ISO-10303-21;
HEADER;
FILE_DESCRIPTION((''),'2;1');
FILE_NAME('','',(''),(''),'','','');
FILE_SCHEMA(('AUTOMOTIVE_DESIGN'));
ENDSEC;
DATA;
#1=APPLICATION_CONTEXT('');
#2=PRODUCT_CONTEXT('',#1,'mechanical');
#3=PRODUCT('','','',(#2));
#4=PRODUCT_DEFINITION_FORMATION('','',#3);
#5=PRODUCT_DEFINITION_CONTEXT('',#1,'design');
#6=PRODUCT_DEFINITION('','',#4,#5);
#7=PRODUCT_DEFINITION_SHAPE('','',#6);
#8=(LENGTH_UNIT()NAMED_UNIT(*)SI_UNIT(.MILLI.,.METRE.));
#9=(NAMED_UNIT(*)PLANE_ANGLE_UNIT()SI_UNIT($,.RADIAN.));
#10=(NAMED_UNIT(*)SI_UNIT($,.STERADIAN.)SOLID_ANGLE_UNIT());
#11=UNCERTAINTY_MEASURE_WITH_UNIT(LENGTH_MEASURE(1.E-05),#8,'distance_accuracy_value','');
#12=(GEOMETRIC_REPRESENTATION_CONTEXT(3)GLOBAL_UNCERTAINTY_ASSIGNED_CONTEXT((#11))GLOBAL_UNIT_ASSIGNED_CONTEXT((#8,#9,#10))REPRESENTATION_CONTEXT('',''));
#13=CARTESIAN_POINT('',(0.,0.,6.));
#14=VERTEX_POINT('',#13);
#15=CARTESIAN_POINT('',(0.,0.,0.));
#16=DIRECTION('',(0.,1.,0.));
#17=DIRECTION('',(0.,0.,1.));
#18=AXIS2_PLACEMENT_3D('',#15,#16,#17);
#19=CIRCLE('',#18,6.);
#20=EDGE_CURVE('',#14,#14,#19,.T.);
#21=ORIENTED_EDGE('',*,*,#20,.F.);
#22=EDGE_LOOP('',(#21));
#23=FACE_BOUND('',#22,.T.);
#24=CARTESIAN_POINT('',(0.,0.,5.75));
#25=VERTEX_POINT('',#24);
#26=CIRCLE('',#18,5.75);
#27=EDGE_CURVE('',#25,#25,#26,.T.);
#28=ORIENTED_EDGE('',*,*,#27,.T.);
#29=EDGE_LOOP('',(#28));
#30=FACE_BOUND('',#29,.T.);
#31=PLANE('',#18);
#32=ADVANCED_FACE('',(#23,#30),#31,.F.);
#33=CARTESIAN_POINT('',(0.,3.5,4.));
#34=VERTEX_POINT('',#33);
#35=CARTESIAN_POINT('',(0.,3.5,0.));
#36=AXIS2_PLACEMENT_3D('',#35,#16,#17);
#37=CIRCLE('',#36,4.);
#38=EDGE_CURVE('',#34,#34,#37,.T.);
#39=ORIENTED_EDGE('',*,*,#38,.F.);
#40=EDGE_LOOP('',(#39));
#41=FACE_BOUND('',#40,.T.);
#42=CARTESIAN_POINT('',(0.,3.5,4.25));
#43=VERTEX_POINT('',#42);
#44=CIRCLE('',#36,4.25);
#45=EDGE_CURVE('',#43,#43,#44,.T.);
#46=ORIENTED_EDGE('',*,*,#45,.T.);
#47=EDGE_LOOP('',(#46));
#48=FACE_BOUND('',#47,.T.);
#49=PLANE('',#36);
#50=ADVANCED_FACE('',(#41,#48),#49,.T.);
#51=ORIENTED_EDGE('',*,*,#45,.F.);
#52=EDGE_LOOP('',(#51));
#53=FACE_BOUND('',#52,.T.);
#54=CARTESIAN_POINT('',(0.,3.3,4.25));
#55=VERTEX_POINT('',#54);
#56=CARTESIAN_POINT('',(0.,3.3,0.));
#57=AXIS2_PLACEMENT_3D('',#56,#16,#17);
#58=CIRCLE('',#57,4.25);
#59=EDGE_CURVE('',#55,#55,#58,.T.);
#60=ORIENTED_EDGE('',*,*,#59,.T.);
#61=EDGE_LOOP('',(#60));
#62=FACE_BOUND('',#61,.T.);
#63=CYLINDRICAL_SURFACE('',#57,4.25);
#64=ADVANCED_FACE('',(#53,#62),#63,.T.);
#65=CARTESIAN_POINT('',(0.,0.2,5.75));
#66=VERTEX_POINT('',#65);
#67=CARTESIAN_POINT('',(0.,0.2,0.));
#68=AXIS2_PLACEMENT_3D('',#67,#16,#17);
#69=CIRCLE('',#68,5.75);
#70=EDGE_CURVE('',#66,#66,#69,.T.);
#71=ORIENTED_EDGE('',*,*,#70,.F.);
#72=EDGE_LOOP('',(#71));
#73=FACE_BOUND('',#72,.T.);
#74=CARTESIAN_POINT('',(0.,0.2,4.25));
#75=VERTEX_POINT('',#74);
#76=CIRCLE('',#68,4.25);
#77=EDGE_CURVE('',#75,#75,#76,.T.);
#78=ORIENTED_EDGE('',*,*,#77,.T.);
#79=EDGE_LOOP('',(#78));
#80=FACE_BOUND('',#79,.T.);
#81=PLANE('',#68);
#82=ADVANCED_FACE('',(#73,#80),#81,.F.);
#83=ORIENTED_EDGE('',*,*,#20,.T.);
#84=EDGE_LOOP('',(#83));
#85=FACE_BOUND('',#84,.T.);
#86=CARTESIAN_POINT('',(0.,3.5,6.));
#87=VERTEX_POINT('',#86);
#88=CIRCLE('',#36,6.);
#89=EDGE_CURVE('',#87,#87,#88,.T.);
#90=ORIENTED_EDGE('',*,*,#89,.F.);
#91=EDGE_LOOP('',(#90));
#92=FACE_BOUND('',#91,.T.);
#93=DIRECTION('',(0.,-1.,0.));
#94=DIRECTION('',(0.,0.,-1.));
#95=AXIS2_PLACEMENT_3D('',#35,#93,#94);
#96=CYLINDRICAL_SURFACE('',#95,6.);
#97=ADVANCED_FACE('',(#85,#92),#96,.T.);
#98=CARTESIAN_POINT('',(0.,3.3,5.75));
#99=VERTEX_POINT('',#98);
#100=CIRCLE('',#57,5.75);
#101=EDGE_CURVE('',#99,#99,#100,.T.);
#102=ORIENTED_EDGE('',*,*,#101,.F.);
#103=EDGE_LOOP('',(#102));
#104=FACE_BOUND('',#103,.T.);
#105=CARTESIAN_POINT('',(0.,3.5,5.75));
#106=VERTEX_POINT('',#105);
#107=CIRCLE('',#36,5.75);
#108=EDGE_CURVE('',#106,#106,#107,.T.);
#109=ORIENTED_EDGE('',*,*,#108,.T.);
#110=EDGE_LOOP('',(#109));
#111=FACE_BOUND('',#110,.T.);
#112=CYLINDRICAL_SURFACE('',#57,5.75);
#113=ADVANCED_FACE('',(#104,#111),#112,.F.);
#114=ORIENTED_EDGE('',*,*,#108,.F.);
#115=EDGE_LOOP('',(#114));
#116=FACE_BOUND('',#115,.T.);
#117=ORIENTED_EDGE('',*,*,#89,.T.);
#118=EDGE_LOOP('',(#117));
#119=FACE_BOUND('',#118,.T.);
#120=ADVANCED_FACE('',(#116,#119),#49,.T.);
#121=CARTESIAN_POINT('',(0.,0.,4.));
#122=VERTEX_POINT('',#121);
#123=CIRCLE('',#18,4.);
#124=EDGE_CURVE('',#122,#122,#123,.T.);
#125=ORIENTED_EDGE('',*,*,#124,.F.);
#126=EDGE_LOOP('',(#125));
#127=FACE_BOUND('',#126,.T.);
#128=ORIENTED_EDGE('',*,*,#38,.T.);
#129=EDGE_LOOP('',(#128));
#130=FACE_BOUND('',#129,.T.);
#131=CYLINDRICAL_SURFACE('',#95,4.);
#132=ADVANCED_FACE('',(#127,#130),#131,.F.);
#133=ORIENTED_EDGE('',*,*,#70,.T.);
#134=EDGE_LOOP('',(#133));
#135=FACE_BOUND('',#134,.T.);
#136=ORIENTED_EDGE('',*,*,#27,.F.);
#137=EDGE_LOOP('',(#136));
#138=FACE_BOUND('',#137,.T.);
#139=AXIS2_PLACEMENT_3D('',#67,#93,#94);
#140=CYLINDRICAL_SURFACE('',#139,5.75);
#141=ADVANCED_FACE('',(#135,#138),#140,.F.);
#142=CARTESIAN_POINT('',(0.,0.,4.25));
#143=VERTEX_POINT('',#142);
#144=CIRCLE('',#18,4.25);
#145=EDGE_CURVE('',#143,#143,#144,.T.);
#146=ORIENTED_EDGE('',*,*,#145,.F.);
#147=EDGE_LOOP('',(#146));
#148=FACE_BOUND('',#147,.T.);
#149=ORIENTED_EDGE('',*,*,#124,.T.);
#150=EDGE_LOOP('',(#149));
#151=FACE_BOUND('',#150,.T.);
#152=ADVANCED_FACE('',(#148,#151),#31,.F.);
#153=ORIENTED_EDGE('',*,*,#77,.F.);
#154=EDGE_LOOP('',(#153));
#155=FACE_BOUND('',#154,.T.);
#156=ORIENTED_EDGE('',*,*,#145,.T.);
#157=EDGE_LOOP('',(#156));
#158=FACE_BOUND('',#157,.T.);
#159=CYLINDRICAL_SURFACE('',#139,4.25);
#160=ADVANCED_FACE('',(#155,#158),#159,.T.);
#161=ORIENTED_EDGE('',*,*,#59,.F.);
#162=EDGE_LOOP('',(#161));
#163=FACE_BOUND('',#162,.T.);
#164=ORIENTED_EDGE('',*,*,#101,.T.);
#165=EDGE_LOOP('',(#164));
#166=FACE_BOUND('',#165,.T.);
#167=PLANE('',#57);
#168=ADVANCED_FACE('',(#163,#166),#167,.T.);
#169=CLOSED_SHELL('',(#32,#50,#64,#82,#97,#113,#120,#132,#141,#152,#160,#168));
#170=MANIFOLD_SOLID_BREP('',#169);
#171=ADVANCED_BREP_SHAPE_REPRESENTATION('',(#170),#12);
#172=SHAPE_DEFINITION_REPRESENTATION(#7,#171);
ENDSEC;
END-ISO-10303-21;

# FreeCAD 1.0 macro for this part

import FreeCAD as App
import Part
import Sketcher

doc = App.newDocument("Part")
body = doc.addObject("PartDesign::Body", "Body")

# Sketch on XZ plane
sketch1 = body.newObject("Sketcher::SketchObject", "Sketch")
sketch1.AttachmentSupport = (doc.getObject("XZ_Plane"), [""])
sketch1.MapMode = "FlatFace"
sketch1.addGeometry([
    Part.Circle(App.Vector(0, 0, 0), App.Vector(0, 0, 1), 6),
    Part.Circle(App.Vector(0, 0, 0), App.Vector(0, 0, 1), 4),
], False)
sketch1.addConstraint([
    Sketcher.Constraint("Coincident", 0, 3, -1, 1),
    Sketcher.Constraint("Coincident", 1, 3, -1, 1),
    Sketcher.Constraint("Diameter", 0, 12.0),
    Sketcher.Constraint("Diameter", 1, 8.0),
])
pad1 = body.newObject("PartDesign::Pad", "Pad")
pad1.Profile = sketch1
pad1.Length = 3.5
pad1.Reversed = True

# Sketch on XZ plane
sketch2 = body.newObject("Sketcher::SketchObject", "Sketch001")
sketch2.AttachmentSupport = (doc.getObject("XZ_Plane"), [""])
sketch2.MapMode = "FlatFace"
sketch2.AttachmentOffset = App.Placement(App.Vector(0, 0, -3.5), App.Rotation())
sketch2.addGeometry([
    Part.Circle(App.Vector(0, 0, 0), App.Vector(0, 0, 1), 5.8),
    Part.Circle(App.Vector(0, 0, 0), App.Vector(0, 0, 1), 4.2),
], False)
sketch2.addConstraint([
    Sketcher.Constraint("Coincident", 0, 3, -1, 1),
    Sketcher.Constraint("Coincident", 1, 3, -1, 1),
    Sketcher.Constraint("Diameter", 0, 11.5),
    Sketcher.Constraint("Diameter", 1, 8.5),
])
pocket1 = body.newObject("PartDesign::Pocket", "Pocket")
pocket1.Profile = sketch2
pocket1.Length = 0.2
pocket1.Reversed = True

# Sketch on XZ plane
sketch3 = body.newObject("Sketcher::SketchObject", "Sketch002")
sketch3.AttachmentSupport = (doc.getObject("XZ_Plane"), [""])
sketch3.MapMode = "FlatFace"
sketch3.addGeometry([
    Part.Circle(App.Vector(0, 0, 0), App.Vector(0, 0, 1), 5.8),
    Part.Circle(App.Vector(0, 0, 0), App.Vector(0, 0, 1), 4.2),
], False)
sketch3.addConstraint([
    Sketcher.Constraint("Coincident", 0, 3, -1, 1),
    Sketcher.Constraint("Coincident", 1, 3, -1, 1),
    Sketcher.Constraint("Diameter", 0, 11.5),
    Sketcher.Constraint("Diameter", 1, 8.5),
])
pocket2 = body.newObject("PartDesign::Pocket", "Pocket001")
pocket2.Profile = sketch3
pocket2.Length = 0.2

doc.recompute()
